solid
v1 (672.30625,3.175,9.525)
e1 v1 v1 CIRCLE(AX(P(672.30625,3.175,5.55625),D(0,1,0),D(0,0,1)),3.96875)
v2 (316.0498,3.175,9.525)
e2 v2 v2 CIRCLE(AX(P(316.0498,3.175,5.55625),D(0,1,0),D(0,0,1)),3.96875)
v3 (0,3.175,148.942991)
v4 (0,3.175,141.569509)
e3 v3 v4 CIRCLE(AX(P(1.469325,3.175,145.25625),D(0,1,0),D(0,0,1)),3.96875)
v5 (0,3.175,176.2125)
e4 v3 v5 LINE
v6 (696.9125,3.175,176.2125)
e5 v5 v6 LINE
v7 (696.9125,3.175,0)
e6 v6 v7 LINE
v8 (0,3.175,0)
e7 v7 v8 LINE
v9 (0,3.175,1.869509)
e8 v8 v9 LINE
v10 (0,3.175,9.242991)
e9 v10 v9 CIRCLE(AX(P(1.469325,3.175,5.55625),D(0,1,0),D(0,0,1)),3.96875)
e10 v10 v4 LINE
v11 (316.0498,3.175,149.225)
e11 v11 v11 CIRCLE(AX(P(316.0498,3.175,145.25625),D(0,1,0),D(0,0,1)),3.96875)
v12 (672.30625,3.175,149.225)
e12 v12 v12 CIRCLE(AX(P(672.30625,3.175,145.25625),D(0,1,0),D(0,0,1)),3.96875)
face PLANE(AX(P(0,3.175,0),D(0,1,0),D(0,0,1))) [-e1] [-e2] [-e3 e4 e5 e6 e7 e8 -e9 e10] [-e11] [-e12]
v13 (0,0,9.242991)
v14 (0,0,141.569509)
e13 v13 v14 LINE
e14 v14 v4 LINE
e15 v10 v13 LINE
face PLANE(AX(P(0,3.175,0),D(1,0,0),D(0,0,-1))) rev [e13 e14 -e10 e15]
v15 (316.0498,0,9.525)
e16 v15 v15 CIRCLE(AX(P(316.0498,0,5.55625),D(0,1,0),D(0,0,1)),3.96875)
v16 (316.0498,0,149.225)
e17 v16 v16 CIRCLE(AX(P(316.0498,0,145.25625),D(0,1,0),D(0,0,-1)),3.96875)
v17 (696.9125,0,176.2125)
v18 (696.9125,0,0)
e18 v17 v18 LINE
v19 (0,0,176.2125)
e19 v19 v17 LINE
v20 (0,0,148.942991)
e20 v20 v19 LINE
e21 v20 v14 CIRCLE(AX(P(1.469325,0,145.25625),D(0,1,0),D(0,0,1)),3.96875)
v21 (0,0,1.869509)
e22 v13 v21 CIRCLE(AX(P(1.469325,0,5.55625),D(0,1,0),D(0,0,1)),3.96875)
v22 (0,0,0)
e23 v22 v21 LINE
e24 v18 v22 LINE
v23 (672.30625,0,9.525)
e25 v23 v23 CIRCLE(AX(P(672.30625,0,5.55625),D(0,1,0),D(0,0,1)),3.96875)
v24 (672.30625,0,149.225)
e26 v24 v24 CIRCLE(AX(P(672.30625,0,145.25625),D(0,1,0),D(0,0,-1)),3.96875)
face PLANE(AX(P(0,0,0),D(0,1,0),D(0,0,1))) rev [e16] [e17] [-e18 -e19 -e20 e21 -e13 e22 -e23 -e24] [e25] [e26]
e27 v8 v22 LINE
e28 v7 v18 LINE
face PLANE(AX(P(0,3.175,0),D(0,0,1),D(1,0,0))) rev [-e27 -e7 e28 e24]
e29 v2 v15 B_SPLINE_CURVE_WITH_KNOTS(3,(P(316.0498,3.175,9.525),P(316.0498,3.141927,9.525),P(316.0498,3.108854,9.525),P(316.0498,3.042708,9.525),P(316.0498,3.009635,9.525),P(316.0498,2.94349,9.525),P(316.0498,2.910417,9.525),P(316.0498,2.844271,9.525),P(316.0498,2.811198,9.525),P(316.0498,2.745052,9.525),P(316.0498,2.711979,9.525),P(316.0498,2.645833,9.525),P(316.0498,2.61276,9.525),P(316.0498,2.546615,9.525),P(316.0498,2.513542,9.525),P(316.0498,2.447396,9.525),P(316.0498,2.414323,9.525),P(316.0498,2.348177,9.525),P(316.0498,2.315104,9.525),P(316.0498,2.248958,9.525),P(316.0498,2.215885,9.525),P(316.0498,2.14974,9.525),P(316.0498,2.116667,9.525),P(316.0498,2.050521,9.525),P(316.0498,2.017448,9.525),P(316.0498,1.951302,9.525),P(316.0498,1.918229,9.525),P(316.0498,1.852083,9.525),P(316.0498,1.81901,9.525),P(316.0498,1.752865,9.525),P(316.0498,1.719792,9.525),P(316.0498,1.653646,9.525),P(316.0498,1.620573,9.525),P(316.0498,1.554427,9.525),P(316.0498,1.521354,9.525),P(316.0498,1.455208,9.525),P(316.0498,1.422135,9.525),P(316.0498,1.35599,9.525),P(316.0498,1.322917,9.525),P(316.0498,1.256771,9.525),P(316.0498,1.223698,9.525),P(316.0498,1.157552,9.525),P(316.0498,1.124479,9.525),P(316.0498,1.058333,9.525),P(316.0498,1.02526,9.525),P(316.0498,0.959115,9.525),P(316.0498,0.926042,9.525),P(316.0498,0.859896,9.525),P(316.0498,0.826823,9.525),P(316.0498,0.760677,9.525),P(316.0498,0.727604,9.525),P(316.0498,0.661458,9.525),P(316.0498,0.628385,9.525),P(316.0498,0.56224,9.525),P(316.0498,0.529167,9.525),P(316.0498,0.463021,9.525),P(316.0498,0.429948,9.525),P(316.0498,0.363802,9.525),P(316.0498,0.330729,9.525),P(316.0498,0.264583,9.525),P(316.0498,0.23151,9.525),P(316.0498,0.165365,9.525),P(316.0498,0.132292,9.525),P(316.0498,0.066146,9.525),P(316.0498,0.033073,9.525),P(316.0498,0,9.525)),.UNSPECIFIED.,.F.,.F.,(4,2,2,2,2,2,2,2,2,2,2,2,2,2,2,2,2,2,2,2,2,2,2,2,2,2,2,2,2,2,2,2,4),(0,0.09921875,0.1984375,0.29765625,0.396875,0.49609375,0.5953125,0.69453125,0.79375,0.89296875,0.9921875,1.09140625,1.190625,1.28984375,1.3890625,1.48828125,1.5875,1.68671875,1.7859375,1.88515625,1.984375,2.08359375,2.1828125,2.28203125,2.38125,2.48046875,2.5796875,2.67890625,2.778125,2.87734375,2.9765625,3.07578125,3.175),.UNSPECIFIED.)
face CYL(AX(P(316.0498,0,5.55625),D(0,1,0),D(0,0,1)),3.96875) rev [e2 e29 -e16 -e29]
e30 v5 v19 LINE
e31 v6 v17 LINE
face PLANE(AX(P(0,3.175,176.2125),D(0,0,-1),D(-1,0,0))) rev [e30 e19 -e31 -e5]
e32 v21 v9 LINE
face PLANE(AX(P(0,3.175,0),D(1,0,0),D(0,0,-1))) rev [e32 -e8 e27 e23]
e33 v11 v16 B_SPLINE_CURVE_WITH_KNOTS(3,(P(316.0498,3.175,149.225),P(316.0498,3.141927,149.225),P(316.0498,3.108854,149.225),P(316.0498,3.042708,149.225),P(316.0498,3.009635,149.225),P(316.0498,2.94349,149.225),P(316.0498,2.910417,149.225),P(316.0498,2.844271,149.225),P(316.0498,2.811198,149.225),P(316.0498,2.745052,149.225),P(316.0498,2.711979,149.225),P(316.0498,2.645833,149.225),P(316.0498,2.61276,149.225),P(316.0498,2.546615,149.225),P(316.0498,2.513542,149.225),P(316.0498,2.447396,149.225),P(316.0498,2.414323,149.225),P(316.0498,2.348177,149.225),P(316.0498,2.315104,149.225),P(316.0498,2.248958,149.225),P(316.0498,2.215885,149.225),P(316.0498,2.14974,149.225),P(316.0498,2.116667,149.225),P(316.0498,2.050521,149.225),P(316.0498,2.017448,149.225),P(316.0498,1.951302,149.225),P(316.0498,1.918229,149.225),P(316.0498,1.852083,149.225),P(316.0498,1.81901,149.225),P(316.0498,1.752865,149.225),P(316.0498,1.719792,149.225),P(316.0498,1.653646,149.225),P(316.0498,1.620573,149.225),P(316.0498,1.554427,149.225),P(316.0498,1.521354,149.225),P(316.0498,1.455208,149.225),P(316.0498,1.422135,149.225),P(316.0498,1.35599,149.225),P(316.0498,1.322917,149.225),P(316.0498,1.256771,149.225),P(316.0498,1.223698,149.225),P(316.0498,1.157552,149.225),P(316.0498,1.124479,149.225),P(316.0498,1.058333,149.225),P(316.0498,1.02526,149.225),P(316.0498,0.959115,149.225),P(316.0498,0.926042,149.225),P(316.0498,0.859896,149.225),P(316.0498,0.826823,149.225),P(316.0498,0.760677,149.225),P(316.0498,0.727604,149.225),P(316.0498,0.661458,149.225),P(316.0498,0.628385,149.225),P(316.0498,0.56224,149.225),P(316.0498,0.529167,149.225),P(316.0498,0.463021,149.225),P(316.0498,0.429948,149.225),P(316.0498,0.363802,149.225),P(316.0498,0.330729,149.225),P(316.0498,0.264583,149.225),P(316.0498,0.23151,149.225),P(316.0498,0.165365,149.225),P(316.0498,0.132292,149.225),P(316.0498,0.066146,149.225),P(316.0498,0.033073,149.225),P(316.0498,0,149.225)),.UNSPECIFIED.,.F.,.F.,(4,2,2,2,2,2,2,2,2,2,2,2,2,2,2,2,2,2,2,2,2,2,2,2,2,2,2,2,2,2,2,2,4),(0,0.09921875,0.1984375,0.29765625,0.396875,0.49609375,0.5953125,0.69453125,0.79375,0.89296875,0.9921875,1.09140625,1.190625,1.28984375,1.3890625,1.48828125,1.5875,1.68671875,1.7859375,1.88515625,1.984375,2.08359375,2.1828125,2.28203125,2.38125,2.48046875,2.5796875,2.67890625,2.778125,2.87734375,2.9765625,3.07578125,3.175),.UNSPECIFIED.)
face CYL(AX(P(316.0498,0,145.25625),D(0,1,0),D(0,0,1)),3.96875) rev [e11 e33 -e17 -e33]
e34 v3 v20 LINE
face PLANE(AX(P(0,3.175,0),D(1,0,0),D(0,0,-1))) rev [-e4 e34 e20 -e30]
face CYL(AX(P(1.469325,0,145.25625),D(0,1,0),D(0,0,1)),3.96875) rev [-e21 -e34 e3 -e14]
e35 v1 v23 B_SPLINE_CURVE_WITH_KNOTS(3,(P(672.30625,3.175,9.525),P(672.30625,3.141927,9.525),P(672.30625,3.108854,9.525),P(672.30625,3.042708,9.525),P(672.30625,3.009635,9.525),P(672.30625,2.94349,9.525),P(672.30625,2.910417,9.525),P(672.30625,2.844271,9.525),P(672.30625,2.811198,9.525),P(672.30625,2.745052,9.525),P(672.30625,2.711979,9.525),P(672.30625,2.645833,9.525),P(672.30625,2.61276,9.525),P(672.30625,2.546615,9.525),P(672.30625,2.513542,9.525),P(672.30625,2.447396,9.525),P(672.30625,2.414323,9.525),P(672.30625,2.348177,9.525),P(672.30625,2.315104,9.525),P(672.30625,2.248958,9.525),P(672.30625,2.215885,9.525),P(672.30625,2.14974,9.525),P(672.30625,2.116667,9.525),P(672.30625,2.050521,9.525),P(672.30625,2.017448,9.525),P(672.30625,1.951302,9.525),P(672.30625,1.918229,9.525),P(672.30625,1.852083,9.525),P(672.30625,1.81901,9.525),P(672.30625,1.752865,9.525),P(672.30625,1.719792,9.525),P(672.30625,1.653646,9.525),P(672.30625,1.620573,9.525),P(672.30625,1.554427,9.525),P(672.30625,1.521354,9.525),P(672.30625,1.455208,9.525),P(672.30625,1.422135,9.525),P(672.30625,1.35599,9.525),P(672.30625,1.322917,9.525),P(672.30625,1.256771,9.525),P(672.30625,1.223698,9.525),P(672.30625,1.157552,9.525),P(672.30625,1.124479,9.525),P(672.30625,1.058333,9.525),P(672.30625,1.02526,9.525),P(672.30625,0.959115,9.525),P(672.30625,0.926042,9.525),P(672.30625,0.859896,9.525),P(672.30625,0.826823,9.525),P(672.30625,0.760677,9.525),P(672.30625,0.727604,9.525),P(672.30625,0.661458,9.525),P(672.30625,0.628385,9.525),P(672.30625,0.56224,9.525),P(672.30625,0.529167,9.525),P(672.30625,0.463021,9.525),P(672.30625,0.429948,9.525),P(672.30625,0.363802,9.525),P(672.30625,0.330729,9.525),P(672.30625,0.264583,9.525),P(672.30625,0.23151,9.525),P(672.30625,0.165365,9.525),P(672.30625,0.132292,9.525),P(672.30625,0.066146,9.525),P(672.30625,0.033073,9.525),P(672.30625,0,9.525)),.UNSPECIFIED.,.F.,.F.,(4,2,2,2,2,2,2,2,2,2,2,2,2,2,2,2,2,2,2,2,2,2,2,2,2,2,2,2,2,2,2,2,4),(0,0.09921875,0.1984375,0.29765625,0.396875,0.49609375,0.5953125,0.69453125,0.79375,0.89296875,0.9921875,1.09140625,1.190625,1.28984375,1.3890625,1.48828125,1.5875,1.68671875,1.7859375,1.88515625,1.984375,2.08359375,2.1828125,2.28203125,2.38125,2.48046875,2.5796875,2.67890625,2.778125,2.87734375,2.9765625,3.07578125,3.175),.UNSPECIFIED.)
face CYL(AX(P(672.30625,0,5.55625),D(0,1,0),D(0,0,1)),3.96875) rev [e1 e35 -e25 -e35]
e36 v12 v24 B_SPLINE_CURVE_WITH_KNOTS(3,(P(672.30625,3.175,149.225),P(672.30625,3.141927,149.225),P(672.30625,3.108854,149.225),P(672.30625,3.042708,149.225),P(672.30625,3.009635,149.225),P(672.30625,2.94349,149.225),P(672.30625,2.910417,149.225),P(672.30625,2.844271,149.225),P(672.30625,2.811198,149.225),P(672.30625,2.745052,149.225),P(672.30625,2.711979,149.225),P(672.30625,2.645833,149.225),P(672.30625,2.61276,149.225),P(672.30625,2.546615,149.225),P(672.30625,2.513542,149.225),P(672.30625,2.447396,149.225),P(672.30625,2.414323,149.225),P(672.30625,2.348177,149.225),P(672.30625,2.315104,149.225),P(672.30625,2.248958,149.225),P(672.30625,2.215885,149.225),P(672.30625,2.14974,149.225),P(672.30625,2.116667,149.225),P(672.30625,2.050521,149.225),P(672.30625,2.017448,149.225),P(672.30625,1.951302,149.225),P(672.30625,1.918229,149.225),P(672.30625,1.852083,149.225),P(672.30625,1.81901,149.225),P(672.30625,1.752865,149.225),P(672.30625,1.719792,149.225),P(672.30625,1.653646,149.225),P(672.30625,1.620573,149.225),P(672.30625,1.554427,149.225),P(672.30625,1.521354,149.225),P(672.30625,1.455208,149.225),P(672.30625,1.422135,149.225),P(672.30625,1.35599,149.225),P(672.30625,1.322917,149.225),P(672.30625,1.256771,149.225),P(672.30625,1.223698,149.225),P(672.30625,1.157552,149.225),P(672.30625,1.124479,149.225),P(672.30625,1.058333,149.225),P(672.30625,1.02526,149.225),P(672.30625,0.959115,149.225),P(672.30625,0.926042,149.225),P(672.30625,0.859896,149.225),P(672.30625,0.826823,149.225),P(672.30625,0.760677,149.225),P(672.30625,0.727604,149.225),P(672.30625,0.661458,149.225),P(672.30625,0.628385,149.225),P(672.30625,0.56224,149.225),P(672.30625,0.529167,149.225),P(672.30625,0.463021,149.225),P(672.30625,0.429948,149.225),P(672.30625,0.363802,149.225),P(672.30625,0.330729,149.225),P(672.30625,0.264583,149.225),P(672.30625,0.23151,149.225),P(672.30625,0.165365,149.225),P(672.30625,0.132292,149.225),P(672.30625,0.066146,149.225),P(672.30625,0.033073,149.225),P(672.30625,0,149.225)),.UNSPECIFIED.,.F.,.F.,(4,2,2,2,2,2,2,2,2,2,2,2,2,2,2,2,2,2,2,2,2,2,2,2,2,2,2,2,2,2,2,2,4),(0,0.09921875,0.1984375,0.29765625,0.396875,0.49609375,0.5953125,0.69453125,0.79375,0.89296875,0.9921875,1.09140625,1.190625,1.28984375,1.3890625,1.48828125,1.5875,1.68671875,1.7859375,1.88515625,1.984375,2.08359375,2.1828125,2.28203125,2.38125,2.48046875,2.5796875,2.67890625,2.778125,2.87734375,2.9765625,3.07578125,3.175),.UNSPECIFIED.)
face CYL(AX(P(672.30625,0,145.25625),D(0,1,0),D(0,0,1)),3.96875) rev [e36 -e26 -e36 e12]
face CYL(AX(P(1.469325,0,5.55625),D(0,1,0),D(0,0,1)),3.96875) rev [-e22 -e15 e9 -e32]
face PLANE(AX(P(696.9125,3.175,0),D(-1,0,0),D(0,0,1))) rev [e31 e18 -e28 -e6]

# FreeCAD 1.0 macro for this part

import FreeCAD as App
import Part
import Sketcher

V = App.Vector
Q = App.Units.Quantity

doc = App.newDocument("Part")
params = doc.addObject("Spreadsheet::Sheet", "Params")
for row, (alias, value) in enumerate([
    ("sketch1_width", "27.4375 in"),
    ("sketch1_height", "6.9375 in"),
    ("pad1_length", "0.125 in"),
    ("sketch2_diameter", "0.3125 in"),
], start=1):
    params.set(f"A{row}", alias)
    params.set(f"B{row}", "=" + value)
    params.setAlias(f"B{row}", alias)

body = doc.addObject("PartDesign::Body", "Body")

sketch1 = body.newObject("Sketcher::SketchObject", "Sketch")
sketch1.AttachmentSupport = (doc.getObject("XZ_Plane"), [""])
sketch1.MapMode = "FlatFace"
sketch1.addGeometry(Part.LineSegment(V(0, 0, 0), V(0, 176, 0)), False)
sketch1.addGeometry(Part.LineSegment(V(0, 176, 0), V(697, 176, 0)), False)
sketch1.addGeometry(Part.LineSegment(V(697, 176, 0), V(697, 0, 0)), False)
sketch1.addGeometry(Part.LineSegment(V(697, 0, 0), V(0, 0, 0)), False)
sketch1.addConstraint(Sketcher.Constraint("Coincident", 0, 2, 1, 1))
sketch1.addConstraint(Sketcher.Constraint("Coincident", 1, 2, 2, 1))
sketch1.addConstraint(Sketcher.Constraint("Coincident", 2, 2, 3, 1))
sketch1.addConstraint(Sketcher.Constraint("Coincident", 3, 2, 0, 1))
sketch1.addConstraint(Sketcher.Constraint("Vertical", 0))
sketch1.addConstraint(Sketcher.Constraint("Horizontal", 1))
sketch1.addConstraint(Sketcher.Constraint("Vertical", 2))
sketch1.addConstraint(Sketcher.Constraint("Horizontal", 3))
sketch1.addConstraint(Sketcher.Constraint("Coincident", 3, 2, -1, 1))
sketch1.addConstraint(Sketcher.Constraint("DistanceX", 1, 1, 1, 2, Q("27.4375 in")))
sketch1.addConstraint(Sketcher.Constraint("DistanceY", 0, 1, 0, 2, Q("6.9375 in")))
sketch1.setExpression("Constraints[9]", "Params.sketch1_width")
sketch1.setExpression("Constraints[10]", "Params.sketch1_height")
pad1 = body.newObject("PartDesign::Pad", "Pad")
pad1.Profile = sketch1
pad1.setExpression("Length", "Params.pad1_length")
pad1.Reversed = True

sketch2 = body.newObject("Sketcher::SketchObject", "Sketch001")
sketch2.AttachmentSupport = (doc.getObject("XZ_Plane"), [""])
sketch2.MapMode = "FlatFace"
sketch2.AttachmentOffset = App.Placement(V(0, 0, -0.125 * 25.4), App.Rotation())
sketch2.addGeometry(Part.Circle(V(672.3, 5.6, 0), V(0, 0, 1), 4), False)
sketch2.addGeometry(Part.Circle(V(672.3, 145.3, 0), V(0, 0, 1), 4), False)
sketch2.addGeometry(Part.Circle(V(316, 5.6, 0), V(0, 0, 1), 4), False)
sketch2.addGeometry(Part.Circle(V(1.5, 5.6, 0), V(0, 0, 1), 4), False)
sketch2.addGeometry(Part.Circle(V(316, 145.3, 0), V(0, 0, 1), 4), False)
sketch2.addGeometry(Part.Circle(V(1.5, 145.3, 0), V(0, 0, 1), 4), False)
sketch2.addConstraint(Sketcher.Constraint("Equal", 0, 1))
sketch2.addConstraint(Sketcher.Constraint("Equal", 1, 2))
sketch2.addConstraint(Sketcher.Constraint("Equal", 2, 3))
sketch2.addConstraint(Sketcher.Constraint("Equal", 3, 4))
sketch2.addConstraint(Sketcher.Constraint("Equal", 4, 5))
sketch2.addConstraint(Sketcher.Constraint("Horizontal", 0, 3, 2, 3))
sketch2.addConstraint(Sketcher.Constraint("Horizontal", 2, 3, 3, 3))
sketch2.addConstraint(Sketcher.Constraint("Horizontal", 1, 3, 4, 3))
sketch2.addConstraint(Sketcher.Constraint("Horizontal", 4, 3, 5, 3))
sketch2.addConstraint(Sketcher.Constraint("Vertical", 0, 3, 1, 3))
sketch2.addConstraint(Sketcher.Constraint("Vertical", 2, 3, 4, 3))
sketch2.addConstraint(Sketcher.Constraint("Vertical", 3, 3, 5, 3))
sketch2.addConstraint(Sketcher.Constraint("Diameter", 0, Q("0.3125 in")))
sketch2.addConstraint(Sketcher.Constraint("DistanceY", 0, 3, 1, 3, Q("5.5 in")))
sketch2.addConstraint(Sketcher.Constraint("DistanceX", -1, 1, 0, 3, Q("26.46875 in")))
sketch2.addConstraint(Sketcher.Constraint("DistanceY", -1, 1, 0, 3, Q("0.21875 in")))
sketch2.addConstraint(Sketcher.Constraint("DistanceX", -1, 1, 2, 3, Q("316.0498 mm")))
sketch2.addConstraint(Sketcher.Constraint("DistanceX", -1, 1, 3, 3, Q("1.469325 mm")))
sketch2.setExpression("Constraints[12]", "Params.sketch2_diameter")
pocket1 = body.newObject("PartDesign::Pocket", "Pocket")
pocket1.Profile = sketch2
pocket1.Type = "ThroughAll"
pocket1.Midplane = True

doc.recompute()
